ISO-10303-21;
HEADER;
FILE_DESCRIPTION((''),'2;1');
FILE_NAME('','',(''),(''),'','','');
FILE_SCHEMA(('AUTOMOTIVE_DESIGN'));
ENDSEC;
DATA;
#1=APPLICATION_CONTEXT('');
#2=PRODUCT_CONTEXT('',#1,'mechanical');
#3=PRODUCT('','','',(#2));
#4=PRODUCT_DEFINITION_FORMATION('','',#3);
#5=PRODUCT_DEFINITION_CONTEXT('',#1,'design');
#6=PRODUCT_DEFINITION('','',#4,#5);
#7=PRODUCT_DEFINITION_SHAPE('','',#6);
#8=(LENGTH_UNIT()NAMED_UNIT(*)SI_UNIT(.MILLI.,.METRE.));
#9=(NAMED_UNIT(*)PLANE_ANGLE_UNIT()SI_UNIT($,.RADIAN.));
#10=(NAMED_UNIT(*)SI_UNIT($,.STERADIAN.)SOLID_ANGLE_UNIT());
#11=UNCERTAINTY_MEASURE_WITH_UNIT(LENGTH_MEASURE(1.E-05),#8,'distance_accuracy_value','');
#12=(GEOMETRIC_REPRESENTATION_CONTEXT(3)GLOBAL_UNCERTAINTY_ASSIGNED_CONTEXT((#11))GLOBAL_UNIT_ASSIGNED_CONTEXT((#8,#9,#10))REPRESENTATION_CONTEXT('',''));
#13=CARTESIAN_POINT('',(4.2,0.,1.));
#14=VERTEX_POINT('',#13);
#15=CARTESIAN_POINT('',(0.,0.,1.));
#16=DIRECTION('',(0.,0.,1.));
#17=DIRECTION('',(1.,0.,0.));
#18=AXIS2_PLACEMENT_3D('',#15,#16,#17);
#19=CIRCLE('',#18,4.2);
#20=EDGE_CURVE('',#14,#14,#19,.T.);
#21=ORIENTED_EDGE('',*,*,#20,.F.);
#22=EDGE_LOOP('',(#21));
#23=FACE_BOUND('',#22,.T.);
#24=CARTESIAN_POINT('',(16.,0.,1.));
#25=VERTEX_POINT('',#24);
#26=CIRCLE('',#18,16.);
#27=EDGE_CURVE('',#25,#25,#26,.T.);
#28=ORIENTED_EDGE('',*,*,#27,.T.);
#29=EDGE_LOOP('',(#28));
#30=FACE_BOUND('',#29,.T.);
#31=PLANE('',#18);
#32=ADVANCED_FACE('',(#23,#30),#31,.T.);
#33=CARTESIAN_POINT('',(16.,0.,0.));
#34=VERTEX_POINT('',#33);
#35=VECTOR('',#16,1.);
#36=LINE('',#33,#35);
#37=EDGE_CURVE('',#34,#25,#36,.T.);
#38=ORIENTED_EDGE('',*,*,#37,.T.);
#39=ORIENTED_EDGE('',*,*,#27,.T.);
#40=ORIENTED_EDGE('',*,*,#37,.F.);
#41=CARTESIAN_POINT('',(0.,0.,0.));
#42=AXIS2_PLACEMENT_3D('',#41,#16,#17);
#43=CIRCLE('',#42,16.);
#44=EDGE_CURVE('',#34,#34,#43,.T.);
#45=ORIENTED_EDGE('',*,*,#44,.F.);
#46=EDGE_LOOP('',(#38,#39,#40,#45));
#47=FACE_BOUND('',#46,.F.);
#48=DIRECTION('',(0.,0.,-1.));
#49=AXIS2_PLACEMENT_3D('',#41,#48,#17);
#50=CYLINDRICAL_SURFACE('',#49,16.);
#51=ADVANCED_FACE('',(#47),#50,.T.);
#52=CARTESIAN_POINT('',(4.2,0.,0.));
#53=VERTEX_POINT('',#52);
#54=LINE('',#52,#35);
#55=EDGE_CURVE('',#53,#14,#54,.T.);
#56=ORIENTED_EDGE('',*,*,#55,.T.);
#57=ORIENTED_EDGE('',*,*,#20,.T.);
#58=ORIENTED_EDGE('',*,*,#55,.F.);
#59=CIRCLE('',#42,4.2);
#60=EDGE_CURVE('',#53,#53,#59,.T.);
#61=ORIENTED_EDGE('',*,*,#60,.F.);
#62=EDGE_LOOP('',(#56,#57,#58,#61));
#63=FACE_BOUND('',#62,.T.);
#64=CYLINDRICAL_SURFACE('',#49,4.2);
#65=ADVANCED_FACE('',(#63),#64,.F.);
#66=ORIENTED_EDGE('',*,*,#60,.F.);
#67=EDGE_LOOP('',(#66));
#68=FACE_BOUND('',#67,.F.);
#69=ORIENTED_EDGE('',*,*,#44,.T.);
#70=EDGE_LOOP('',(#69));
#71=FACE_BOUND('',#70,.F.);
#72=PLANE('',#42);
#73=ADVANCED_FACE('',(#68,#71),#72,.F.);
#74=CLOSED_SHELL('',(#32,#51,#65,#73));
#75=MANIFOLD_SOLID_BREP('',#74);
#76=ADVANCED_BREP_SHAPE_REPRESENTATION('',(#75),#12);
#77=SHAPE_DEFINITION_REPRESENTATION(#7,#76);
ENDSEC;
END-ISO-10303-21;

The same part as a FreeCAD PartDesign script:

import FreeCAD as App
import Part
import Sketcher
from FreeCAD import Vector

doc = App.newDocument("Part")
body = doc.addObject("PartDesign::Body", "Body")

# Sketch on XY plane
sketch1 = body.newObject("Sketcher::SketchObject", "Sketch")
sketch1.AttachmentSupport = (doc.getObject("XY_Plane"), [""])
sketch1.MapMode = "FlatFace"
sketch1.addGeometry(Part.Circle(Vector(0, 0, 0), Vector(0, 0, 1), 16), False)
sketch1.addGeometry(Part.Circle(Vector(0, 0, 0), Vector(0, 0, 1), 4.2), False)
sketch1.addConstraint(Sketcher.Constraint("Coincident", 0, 3, -1, 1))
sketch1.addConstraint(Sketcher.Constraint("Coincident", 1, 3, -1, 1))
sketch1.addConstraint(Sketcher.Constraint("Diameter", 0, 32.0))
sketch1.addConstraint(Sketcher.Constraint("Diameter", 1, 8.4))
pad1 = body.newObject("PartDesign::Pad", "Pad")
pad1.Profile = sketch1
pad1.Length = 1

doc.recompute()
